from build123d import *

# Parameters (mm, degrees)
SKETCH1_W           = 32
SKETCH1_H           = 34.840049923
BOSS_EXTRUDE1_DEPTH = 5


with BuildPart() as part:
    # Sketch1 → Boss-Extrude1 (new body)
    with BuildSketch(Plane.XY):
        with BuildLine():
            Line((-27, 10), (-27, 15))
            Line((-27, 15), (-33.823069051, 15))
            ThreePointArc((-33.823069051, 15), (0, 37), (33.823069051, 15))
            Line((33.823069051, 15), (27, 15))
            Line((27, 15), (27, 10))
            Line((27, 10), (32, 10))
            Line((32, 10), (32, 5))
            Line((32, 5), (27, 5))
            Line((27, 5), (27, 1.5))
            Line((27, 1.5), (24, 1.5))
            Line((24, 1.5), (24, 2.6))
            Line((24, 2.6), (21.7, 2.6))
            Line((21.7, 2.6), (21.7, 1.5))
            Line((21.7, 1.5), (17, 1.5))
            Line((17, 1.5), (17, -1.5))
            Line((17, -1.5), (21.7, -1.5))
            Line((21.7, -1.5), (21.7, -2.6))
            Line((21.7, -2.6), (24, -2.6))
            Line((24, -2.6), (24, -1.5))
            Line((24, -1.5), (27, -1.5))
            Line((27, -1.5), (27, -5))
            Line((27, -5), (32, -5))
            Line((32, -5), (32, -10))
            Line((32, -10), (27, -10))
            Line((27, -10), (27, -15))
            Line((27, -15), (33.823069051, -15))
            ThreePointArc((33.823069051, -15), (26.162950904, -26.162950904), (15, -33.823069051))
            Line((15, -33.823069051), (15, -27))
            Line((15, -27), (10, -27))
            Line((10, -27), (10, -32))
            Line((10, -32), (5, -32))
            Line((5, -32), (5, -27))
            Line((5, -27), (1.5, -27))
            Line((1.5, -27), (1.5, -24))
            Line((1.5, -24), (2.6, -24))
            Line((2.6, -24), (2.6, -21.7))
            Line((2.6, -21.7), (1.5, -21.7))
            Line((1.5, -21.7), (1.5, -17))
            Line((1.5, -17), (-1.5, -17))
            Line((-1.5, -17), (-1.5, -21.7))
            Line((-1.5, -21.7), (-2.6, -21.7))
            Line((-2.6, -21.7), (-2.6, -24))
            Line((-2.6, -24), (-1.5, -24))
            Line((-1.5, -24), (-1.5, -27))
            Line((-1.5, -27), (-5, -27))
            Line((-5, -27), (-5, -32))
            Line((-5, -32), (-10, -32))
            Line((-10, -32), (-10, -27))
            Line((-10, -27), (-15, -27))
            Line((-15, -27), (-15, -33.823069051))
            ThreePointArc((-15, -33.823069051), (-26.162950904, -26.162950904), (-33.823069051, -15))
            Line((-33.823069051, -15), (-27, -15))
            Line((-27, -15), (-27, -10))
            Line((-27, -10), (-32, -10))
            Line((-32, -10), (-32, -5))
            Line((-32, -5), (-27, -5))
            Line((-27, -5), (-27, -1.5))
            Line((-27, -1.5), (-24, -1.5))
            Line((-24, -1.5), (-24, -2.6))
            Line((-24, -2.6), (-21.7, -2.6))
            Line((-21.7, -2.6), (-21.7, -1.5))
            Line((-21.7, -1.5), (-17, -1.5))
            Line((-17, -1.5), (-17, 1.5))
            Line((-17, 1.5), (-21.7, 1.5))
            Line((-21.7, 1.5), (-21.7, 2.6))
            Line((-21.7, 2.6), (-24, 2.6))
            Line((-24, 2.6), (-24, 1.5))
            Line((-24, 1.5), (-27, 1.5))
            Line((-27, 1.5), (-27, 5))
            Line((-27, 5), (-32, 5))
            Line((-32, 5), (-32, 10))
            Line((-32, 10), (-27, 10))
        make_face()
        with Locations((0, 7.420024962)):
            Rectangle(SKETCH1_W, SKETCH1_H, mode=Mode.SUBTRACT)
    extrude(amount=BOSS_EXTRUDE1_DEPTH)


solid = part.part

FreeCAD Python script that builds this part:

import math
import FreeCAD as App
import Part
import Sketcher

V = App.Vector


def add_polygon(sketch, points):
    """Adds a closed chain of lines whose ends are joined by coincident constraints."""
    first, n = sketch.GeometryCount, len(points)
    for a, b in zip(points, points[1:] + points[:1]):
        sketch.addGeometry(Part.LineSegment(App.Vector(*a, 0), App.Vector(*b, 0)), False)
    for i in range(n):
        sketch.addConstraint(Sketcher.Constraint("Coincident", first + i, 2, first + (i + 1) % n, 1))

doc = App.newDocument("Part")
body = doc.addObject("PartDesign::Body", "Body")

sketch1 = body.newObject("Sketcher::SketchObject", "Sketch")
sketch1.AttachmentSupport = (doc.getObject("XY_Plane"), [""])
sketch1.MapMode = "FlatFace"
sketch1.addGeometry(Part.LineSegment(V(-27, 15, 0), V(-27, 10, 0)), False)
sketch1.addGeometry(Part.LineSegment(V(-27, 10, 0), V(-32, 10, 0)), False)
sketch1.addGeometry(Part.LineSegment(V(-32, 10, 0), V(-32, 5, 0)), False)
sketch1.addGeometry(Part.LineSegment(V(-32, 5, 0), V(-27, 5, 0)), False)
sketch1.addGeometry(Part.LineSegment(V(-27, 5, 0), V(-27, 1.5, 0)), False)
sketch1.addGeometry(Part.LineSegment(V(-27, 1.5, 0), V(-24, 1.5, 0)), False)
sketch1.addGeometry(Part.LineSegment(V(-24, 1.5, 0), V(-24, 2.6, 0)), False)
sketch1.addGeometry(Part.LineSegment(V(-24, 2.6, 0), V(-21.7, 2.6, 0)), False)
sketch1.addGeometry(Part.LineSegment(V(-21.7, 2.6, 0), V(-21.7, 1.5, 0)), False)
sketch1.addGeometry(Part.LineSegment(V(-21.7, 1.5, 0), V(-17, 1.5, 0)), False)
sketch1.addGeometry(Part.LineSegment(V(-17, 1.5, 0), V(-17, -1.5, 0)), False)
sketch1.addGeometry(Part.LineSegment(V(-17, -1.5, 0), V(-21.7, -1.5, 0)), False)
sketch1.addGeometry(Part.LineSegment(V(-21.7, -1.5, 0), V(-21.7, -2.6, 0)), False)
sketch1.addGeometry(Part.LineSegment(V(-21.7, -2.6, 0), V(-24, -2.6, 0)), False)
sketch1.addGeometry(Part.LineSegment(V(-24, -2.6, 0), V(-24, -1.5, 0)), False)
sketch1.addGeometry(Part.LineSegment(V(-24, -1.5, 0), V(-27, -1.5, 0)), False)
sketch1.addGeometry(Part.LineSegment(V(-27, -1.5, 0), V(-27, -5, 0)), False)
sketch1.addGeometry(Part.LineSegment(V(-27, -5, 0), V(-32, -5, 0)), False)
sketch1.addGeometry(Part.LineSegment(V(-32, -5, 0), V(-32, -10, 0)), False)
sketch1.addGeometry(Part.LineSegment(V(-32, -10, 0), V(-27, -10, 0)), False)
sketch1.addGeometry(Part.LineSegment(V(-27, -10, 0), V(-27, -15, 0)), False)
sketch1.addGeometry(Part.LineSegment(V(-27, -15, 0), V(-33.8, -15, 0)), False)
sketch1.addGeometry(Part.ArcOfCircle(Part.Circle(V(0, 0, 0), V(0, 0, 1), 37), math.radians(-156), math.radians(-114)), False)
sketch1.addGeometry(Part.LineSegment(V(-15, -33.8, 0), V(-15, -27, 0)), False)
sketch1.addGeometry(Part.LineSegment(V(-15, -27, 0), V(-10, -27, 0)), False)
sketch1.addGeometry(Part.LineSegment(V(-10, -27, 0), V(-10, -32, 0)), False)
sketch1.addGeometry(Part.LineSegment(V(-10, -32, 0), V(-5, -32, 0)), False)
sketch1.addGeometry(Part.LineSegment(V(-5, -32, 0), V(-5, -27, 0)), False)
sketch1.addGeometry(Part.LineSegment(V(-5, -27, 0), V(-1.5, -27, 0)), False)
sketch1.addGeometry(Part.LineSegment(V(-1.5, -27, 0), V(-1.5, -24, 0)), False)
sketch1.addGeometry(Part.LineSegment(V(-1.5, -24, 0), V(-2.6, -24, 0)), False)
sketch1.addGeometry(Part.LineSegment(V(-2.6, -24, 0), V(-2.6, -21.7, 0)), False)
sketch1.addGeometry(Part.LineSegment(V(-2.6, -21.7, 0), V(-1.5, -21.7, 0)), False)
sketch1.addGeometry(Part.LineSegment(V(-1.5, -21.7, 0), V(-1.5, -17, 0)), False)
sketch1.addGeometry(Part.LineSegment(V(-1.5, -17, 0), V(1.5, -17, 0)), False)
sketch1.addGeometry(Part.LineSegment(V(1.5, -17, 0), V(1.5, -21.7, 0)), False)
sketch1.addGeometry(Part.LineSegment(V(1.5, -21.7, 0), V(2.6, -21.7, 0)), False)
sketch1.addGeometry(Part.LineSegment(V(2.6, -21.7, 0), V(2.6, -24, 0)), False)
sketch1.addGeometry(Part.LineSegment(V(2.6, -24, 0), V(1.5, -24, 0)), False)
sketch1.addGeometry(Part.LineSegment(V(1.5, -24, 0), V(1.5, -27, 0)), False)
sketch1.addGeometry(Part.LineSegment(V(1.5, -27, 0), V(5, -27, 0)), False)
sketch1.addGeometry(Part.LineSegment(V(5, -27, 0), V(5, -32, 0)), False)
sketch1.addGeometry(Part.LineSegment(V(5, -32, 0), V(10, -32, 0)), False)
sketch1.addGeometry(Part.LineSegment(V(10, -32, 0), V(10, -27, 0)), False)
sketch1.addGeometry(Part.LineSegment(V(10, -27, 0), V(15, -27, 0)), False)
sketch1.addGeometry(Part.LineSegment(V(15, -27, 0), V(15, -33.8, 0)), False)
sketch1.addGeometry(Part.ArcOfCircle(Part.Circle(V(0, 0, 0), V(0, 0, 1), 37), math.radians(-66), math.radians(-24)), False)
sketch1.addGeometry(Part.LineSegment(V(33.8, -15, 0), V(27, -15, 0)), False)
sketch1.addGeometry(Part.LineSegment(V(27, -15, 0), V(27, -10, 0)), False)
sketch1.addGeometry(Part.LineSegment(V(27, -10, 0), V(32, -10, 0)), False)
sketch1.addGeometry(Part.LineSegment(V(32, -10, 0), V(32, -5, 0)), False)
sketch1.addGeometry(Part.LineSegment(V(32, -5, 0), V(27, -5, 0)), False)
sketch1.addGeometry(Part.LineSegment(V(27, -5, 0), V(27, -1.5, 0)), False)
sketch1.addGeometry(Part.LineSegment(V(27, -1.5, 0), V(24, -1.5, 0)), False)
sketch1.addGeometry(Part.LineSegment(V(24, -1.5, 0), V(24, -2.6, 0)), False)
sketch1.addGeometry(Part.LineSegment(V(24, -2.6, 0), V(21.7, -2.6, 0)), False)
sketch1.addGeometry(Part.LineSegment(V(21.7, -2.6, 0), V(21.7, -1.5, 0)), False)
sketch1.addGeometry(Part.LineSegment(V(21.7, -1.5, 0), V(17, -1.5, 0)), False)
sketch1.addGeometry(Part.LineSegment(V(17, -1.5, 0), V(17, 1.5, 0)), False)
sketch1.addGeometry(Part.LineSegment(V(17, 1.5, 0), V(21.7, 1.5, 0)), False)
sketch1.addGeometry(Part.LineSegment(V(21.7, 1.5, 0), V(21.7, 2.6, 0)), False)
sketch1.addGeometry(Part.LineSegment(V(21.7, 2.6, 0), V(24, 2.6, 0)), False)
sketch1.addGeometry(Part.LineSegment(V(24, 2.6, 0), V(24, 1.5, 0)), False)
sketch1.addGeometry(Part.LineSegment(V(24, 1.5, 0), V(27, 1.5, 0)), False)
sketch1.addGeometry(Part.LineSegment(V(27, 1.5, 0), V(27, 5, 0)), False)
sketch1.addGeometry(Part.LineSegment(V(27, 5, 0), V(32, 5, 0)), False)
sketch1.addGeometry(Part.LineSegment(V(32, 5, 0), V(32, 10, 0)), False)
sketch1.addGeometry(Part.LineSegment(V(32, 10, 0), V(27, 10, 0)), False)
sketch1.addGeometry(Part.LineSegment(V(27, 10, 0), V(27, 15, 0)), False)
sketch1.addGeometry(Part.LineSegment(V(27, 15, 0), V(33.8, 15, 0)), False)
sketch1.addGeometry(Part.ArcOfCircle(Part.Circle(V(0, 0, 0), V(0, 0, 1), 37), math.radians(24), math.radians(156)), False)
sketch1.addGeometry(Part.LineSegment(V(-33.8, 15, 0), V(-27, 15, 0)), False)
add_polygon(sketch1, [(-16, -10), (-16, 24.8), (16, 24.8), (16, -10)])
sketch1.addConstraint(Sketcher.Constraint("Coincident", 0, 2, 1, 1))
sketch1.addConstraint(Sketcher.Constraint("Coincident", 1, 2, 2, 1))
sketch1.addConstraint(Sketcher.Constraint("Coincident", 2, 2, 3, 1))
sketch1.addConstraint(Sketcher.Constraint("Coincident", 3, 2, 4, 1))
sketch1.addConstraint(Sketcher.Constraint("Coincident", 4, 2, 5, 1))
sketch1.addConstraint(Sketcher.Constraint("Coincident", 5, 2, 6, 1))
sketch1.addConstraint(Sketcher.Constraint("Coincident", 6, 2, 7, 1))
sketch1.addConstraint(Sketcher.Constraint("Coincident", 7, 2, 8, 1))
sketch1.addConstraint(Sketcher.Constraint("Coincident", 8, 2, 9, 1))
sketch1.addConstraint(Sketcher.Constraint("Coincident", 9, 2, 10, 1))
sketch1.addConstraint(Sketcher.Constraint("Coincident", 10, 2, 11, 1))
sketch1.addConstraint(Sketcher.Constraint("Coincident", 11, 2, 12, 1))
sketch1.addConstraint(Sketcher.Constraint("Coincident", 12, 2, 13, 1))
sketch1.addConstraint(Sketcher.Constraint("Coincident", 13, 2, 14, 1))
sketch1.addConstraint(Sketcher.Constraint("Coincident", 14, 2, 15, 1))
sketch1.addConstraint(Sketcher.Constraint("Coincident", 15, 2, 16, 1))
sketch1.addConstraint(Sketcher.Constraint("Coincident", 16, 2, 17, 1))
sketch1.addConstraint(Sketcher.Constraint("Coincident", 17, 2, 18, 1))
sketch1.addConstraint(Sketcher.Constraint("Coincident", 18, 2, 19, 1))
sketch1.addConstraint(Sketcher.Constraint("Coincident", 19, 2, 20, 1))
sketch1.addConstraint(Sketcher.Constraint("Coincident", 20, 2, 21, 1))
sketch1.addConstraint(Sketcher.Constraint("Coincident", 21, 2, 22, 1))
sketch1.addConstraint(Sketcher.Constraint("Coincident", 22, 2, 23, 1))
sketch1.addConstraint(Sketcher.Constraint("Coincident", 23, 2, 24, 1))
sketch1.addConstraint(Sketcher.Constraint("Coincident", 24, 2, 25, 1))
sketch1.addConstraint(Sketcher.Constraint("Coincident", 25, 2, 26, 1))
sketch1.addConstraint(Sketcher.Constraint("Coincident", 26, 2, 27, 1))
sketch1.addConstraint(Sketcher.Constraint("Coincident", 27, 2, 28, 1))
sketch1.addConstraint(Sketcher.Constraint("Coincident", 28, 2, 29, 1))
sketch1.addConstraint(Sketcher.Constraint("Coincident", 29, 2, 30, 1))
sketch1.addConstraint(Sketcher.Constraint("Coincident", 30, 2, 31, 1))
sketch1.addConstraint(Sketcher.Constraint("Coincident", 31, 2, 32, 1))
sketch1.addConstraint(Sketcher.Constraint("Coincident", 32, 2, 33, 1))
sketch1.addConstraint(Sketcher.Constraint("Coincident", 33, 2, 34, 1))
sketch1.addConstraint(Sketcher.Constraint("Coincident", 34, 2, 35, 1))
sketch1.addConstraint(Sketcher.Constraint("Coincident", 35, 2, 36, 1))
sketch1.addConstraint(Sketcher.Constraint("Coincident", 36, 2, 37, 1))
sketch1.addConstraint(Sketcher.Constraint("Coincident", 37, 2, 38, 1))
sketch1.addConstraint(Sketcher.Constraint("Coincident", 38, 2, 39, 1))
sketch1.addConstraint(Sketcher.Constraint("Coincident", 39, 2, 40, 1))
sketch1.addConstraint(Sketcher.Constraint("Coincident", 40, 2, 41, 1))
sketch1.addConstraint(Sketcher.Constraint("Coincident", 41, 2, 42, 1))
sketch1.addConstraint(Sketcher.Constraint("Coincident", 42, 2, 43, 1))
sketch1.addConstraint(Sketcher.Constraint("Coincident", 43, 2, 44, 1))
sketch1.addConstraint(Sketcher.Constraint("Coincident", 44, 2, 45, 1))
sketch1.addConstraint(Sketcher.Constraint("Coincident", 45, 2, 46, 1))
sketch1.addConstraint(Sketcher.Constraint("Coincident", 46, 2, 47, 1))
sketch1.addConstraint(Sketcher.Constraint("Coincident", 47, 2, 48, 1))
sketch1.addConstraint(Sketcher.Constraint("Coincident", 48, 2, 49, 1))
sketch1.addConstraint(Sketcher.Constraint("Coincident", 49, 2, 50, 1))
sketch1.addConstraint(Sketcher.Constraint("Coincident", 50, 2, 51, 1))
sketch1.addConstraint(Sketcher.Constraint("Coincident", 51, 2, 52, 1))
sketch1.addConstraint(Sketcher.Constraint("Coincident", 52, 2, 53, 1))
sketch1.addConstraint(Sketcher.Constraint("Coincident", 53, 2, 54, 1))
sketch1.addConstraint(Sketcher.Constraint("Coincident", 54, 2, 55, 1))
sketch1.addConstraint(Sketcher.Constraint("Coincident", 55, 2, 56, 1))
sketch1.addConstraint(Sketcher.Constraint("Coincident", 56, 2, 57, 1))
sketch1.addConstraint(Sketcher.Constraint("Coincident", 57, 2, 58, 1))
sketch1.addConstraint(Sketcher.Constraint("Coincident", 58, 2, 59, 1))
sketch1.addConstraint(Sketcher.Constraint("Coincident", 59, 2, 60, 1))
sketch1.addConstraint(Sketcher.Constraint("Coincident", 60, 2, 61, 1))
sketch1.addConstraint(Sketcher.Constraint("Coincident", 61, 2, 62, 1))
sketch1.addConstraint(Sketcher.Constraint("Coincident", 62, 2, 63, 1))
sketch1.addConstraint(Sketcher.Constraint("Coincident", 63, 2, 64, 1))
sketch1.addConstraint(Sketcher.Constraint("Coincident", 64, 2, 65, 1))
sketch1.addConstraint(Sketcher.Constraint("Coincident", 65, 2, 66, 1))
sketch1.addConstraint(Sketcher.Constraint("Coincident", 66, 2, 67, 1))
sketch1.addConstraint(Sketcher.Constraint("Coincident", 67, 2, 68, 1))
sketch1.addConstraint(Sketcher.Constraint("Coincident", 68, 2, 69, 1))
sketch1.addConstraint(Sketcher.Constraint("Coincident", 69, 2, 70, 1))
sketch1.addConstraint(Sketcher.Constraint("Coincident", 70, 2, 71, 1))
sketch1.addConstraint(Sketcher.Constraint("Coincident", 71, 2, 0, 1))
sketch1.addConstraint(Sketcher.Constraint("Vertical", 0))
sketch1.addConstraint(Sketcher.Constraint("Horizontal", 1))
sketch1.addConstraint(Sketcher.Constraint("Vertical", 2))
sketch1.addConstraint(Sketcher.Constraint("Horizontal", 3))
sketch1.addConstraint(Sketcher.Constraint("Vertical", 4))
sketch1.addConstraint(Sketcher.Constraint("Horizontal", 5))
sketch1.addConstraint(Sketcher.Constraint("Vertical", 6))
sketch1.addConstraint(Sketcher.Constraint("Horizontal", 7))
sketch1.addConstraint(Sketcher.Constraint("Vertical", 8))
sketch1.addConstraint(Sketcher.Constraint("Horizontal", 9))
sketch1.addConstraint(Sketcher.Constraint("Vertical", 10))
sketch1.addConstraint(Sketcher.Constraint("Horizontal", 11))
sketch1.addConstraint(Sketcher.Constraint("Vertical", 12))
sketch1.addConstraint(Sketcher.Constraint("Horizontal", 13))
sketch1.addConstraint(Sketcher.Constraint("Vertical", 14))
sketch1.addConstraint(Sketcher.Constraint("Horizontal", 15))
sketch1.addConstraint(Sketcher.Constraint("Vertical", 16))
sketch1.addConstraint(Sketcher.Constraint("Horizontal", 17))
sketch1.addConstraint(Sketcher.Constraint("Vertical", 18))
sketch1.addConstraint(Sketcher.Constraint("Horizontal", 19))
sketch1.addConstraint(Sketcher.Constraint("Vertical", 20))
sketch1.addConstraint(Sketcher.Constraint("Horizontal", 21))
sketch1.addConstraint(Sketcher.Constraint("Vertical", 23))
sketch1.addConstraint(Sketcher.Constraint("Horizontal", 24))
sketch1.addConstraint(Sketcher.Constraint("Vertical", 25))
sketch1.addConstraint(Sketcher.Constraint("Horizontal", 26))
sketch1.addConstraint(Sketcher.Constraint("Vertical", 27))
sketch1.addConstraint(Sketcher.Constraint("Horizontal", 28))
sketch1.addConstraint(Sketcher.Constraint("Vertical", 29))
sketch1.addConstraint(Sketcher.Constraint("Horizontal", 30))
sketch1.addConstraint(Sketcher.Constraint("Vertical", 31))
sketch1.addConstraint(Sketcher.Constraint("Horizontal", 32))
sketch1.addConstraint(Sketcher.Constraint("Vertical", 33))
sketch1.addConstraint(Sketcher.Constraint("Horizontal", 34))
sketch1.addConstraint(Sketcher.Constraint("Vertical", 35))
sketch1.addConstraint(Sketcher.Constraint("Horizontal", 36))
sketch1.addConstraint(Sketcher.Constraint("Vertical", 37))
sketch1.addConstraint(Sketcher.Constraint("Horizontal", 38))
sketch1.addConstraint(Sketcher.Constraint("Vertical", 39))
sketch1.addConstraint(Sketcher.Constraint("Horizontal", 40))
sketch1.addConstraint(Sketcher.Constraint("Vertical", 41))
sketch1.addConstraint(Sketcher.Constraint("Horizontal", 42))
sketch1.addConstraint(Sketcher.Constraint("Vertical", 43))
sketch1.addConstraint(Sketcher.Constraint("Horizontal", 44))
sketch1.addConstraint(Sketcher.Constraint("Vertical", 45))
sketch1.addConstraint(Sketcher.Constraint("Horizontal", 47))
sketch1.addConstraint(Sketcher.Constraint("Vertical", 48))
sketch1.addConstraint(Sketcher.Constraint("Horizontal", 49))
sketch1.addConstraint(Sketcher.Constraint("Vertical", 50))
sketch1.addConstraint(Sketcher.Constraint("Horizontal", 51))
sketch1.addConstraint(Sketcher.Constraint("Vertical", 52))
sketch1.addConstraint(Sketcher.Constraint("Horizontal", 53))
sketch1.addConstraint(Sketcher.Constraint("Vertical", 54))
sketch1.addConstraint(Sketcher.Constraint("Horizontal", 55))
sketch1.addConstraint(Sketcher.Constraint("Vertical", 56))
sketch1.addConstraint(Sketcher.Constraint("Horizontal", 57))
sketch1.addConstraint(Sketcher.Constraint("Vertical", 58))
sketch1.addConstraint(Sketcher.Constraint("Horizontal", 59))
sketch1.addConstraint(Sketcher.Constraint("Vertical", 60))
sketch1.addConstraint(Sketcher.Constraint("Horizontal", 61))
sketch1.addConstraint(Sketcher.Constraint("Vertical", 62))
sketch1.addConstraint(Sketcher.Constraint("Horizontal", 63))
sketch1.addConstraint(Sketcher.Constraint("Vertical", 64))
sketch1.addConstraint(Sketcher.Constraint("Horizontal", 65))
sketch1.addConstraint(Sketcher.Constraint("Vertical", 66))
sketch1.addConstraint(Sketcher.Constraint("Horizontal", 67))
sketch1.addConstraint(Sketcher.Constraint("Vertical", 68))
sketch1.addConstraint(Sketcher.Constraint("Horizontal", 69))
sketch1.addConstraint(Sketcher.Constraint("Horizontal", 71))
sketch1.addConstraint(Sketcher.Constraint("Vertical", 72))
sketch1.addConstraint(Sketcher.Constraint("Horizontal", 73))
sketch1.addConstraint(Sketcher.Constraint("Vertical", 74))
sketch1.addConstraint(Sketcher.Constraint("Horizontal", 75))
sketch1.addConstraint(Sketcher.Constraint("Coincident", 22, 3, -1, 1))
sketch1.addConstraint(Sketcher.Constraint("Coincident", 46, 3, -1, 1))
sketch1.addConstraint(Sketcher.Constraint("Coincident", 70, 3, -1, 1))
sketch1.addConstraint(Sketcher.Constraint("Equal", 22, 46))
sketch1.addConstraint(Sketcher.Constraint("Equal", 46, 70))
sketch1.addConstraint(Sketcher.Constraint("Symmetric", 0, 2, 48, 2, -1, 1))
sketch1.addConstraint(Sketcher.Constraint("Symmetric", 2, 2, 50, 2, -1, 1))
sketch1.addConstraint(Sketcher.Constraint("Symmetric", 4, 2, 52, 2, -1, 1))
sketch1.addConstraint(Sketcher.Constraint("Symmetric", 6, 2, 54, 2, -1, 1))
sketch1.addConstraint(Sketcher.Constraint("Symmetric", 8, 2, 56, 2, -1, 1))
sketch1.addConstraint(Sketcher.Constraint("Symmetric", 10, 2, 58, 2, -1, 1))
sketch1.addConstraint(Sketcher.Constraint("Symmetric", 12, 2, 60, 2, -1, 1))
sketch1.addConstraint(Sketcher.Constraint("Symmetric", 14, 2, 62, 2, -1, 1))
sketch1.addConstraint(Sketcher.Constraint("Symmetric", 16, 2, 64, 2, -1, 1))
sketch1.addConstraint(Sketcher.Constraint("Symmetric", 18, 2, 66, 2, -1, 1))
sketch1.addConstraint(Sketcher.Constraint("Symmetric", 20, 2, 68, 2, -1, 1))
sketch1.addConstraint(Sketcher.Constraint("Symmetric", 32, 2, 35, 2, -2))
sketch1.addConstraint(Sketcher.Constraint("Symmetric", 30, 2, 37, 2, -2))
sketch1.addConstraint(Sketcher.Constraint("Symmetric", 28, 2, 39, 2, -2))
sketch1.addConstraint(Sketcher.Constraint("Symmetric", 26, 2, 41, 2, -2))
sketch1.addConstraint(Sketcher.Constraint("Symmetric", 24, 2, 43, 2, -2))
sketch1.addConstraint(Sketcher.Constraint("Symmetric", 20, 2, 47, 2, -2))
sketch1.addConstraint(Sketcher.Constraint("Symmetric", 18, 2, 49, 2, -2))
sketch1.addConstraint(Sketcher.Constraint("Symmetric", 16, 2, 51, 2, -2))
sketch1.addConstraint(Sketcher.Constraint("Symmetric", 14, 2, 53, 2, -2))
sketch1.addConstraint(Sketcher.Constraint("Symmetric", 12, 2, 55, 2, -2))
sketch1.addConstraint(Sketcher.Constraint("Horizontal", 5, 2, 8, 2))
sketch1.addConstraint(Sketcher.Constraint("Horizontal", 11, 2, 14, 2))
sketch1.addConstraint(Sketcher.Constraint("Horizontal", 24, 2, 27, 2))
sketch1.addConstraint(Sketcher.Constraint("Horizontal", 22, 2, 45, 2))
sketch1.addConstraint(Sketcher.Constraint("Horizontal", 69, 2, 70, 2))
sketch1.addConstraint(Sketcher.Constraint("Horizontal", 49, 2, 74, 2))
sketch1.addConstraint(Sketcher.Constraint("Vertical", 0, 2, 3, 2))
sketch1.addConstraint(Sketcher.Constraint("Vertical", 29, 2, 32, 2))
sketch1.addConstraint(Sketcher.Constraint("Equal", 19, 24))
sketch1.addConstraint(Sketcher.Constraint("Equal", 24, 26))
sketch1.addConstraint(Sketcher.Constraint("Equal", 15, 34))
sketch1.addConstraint(Sketcher.Constraint("Equal", 67, 0))
sketch1.addConstraint(Sketcher.Constraint("Equal", 0, 2))
sketch1.addConstraint(Sketcher.Constraint("Equal", 40, 4))
sketch1.addConstraint(Sketcher.Constraint("Equal", 38, 6))
sketch1.addConstraint(Sketcher.Constraint("Equal", 63, 10))
sketch1.addConstraint(Sketcher.Constraint("Equal", 71, 23))
sketch1.addConstraint(Sketcher.Constraint("Equal", 20, 25))
sketch1.addConstraint(Sketcher.Constraint("Equal", 10, 29))
sketch1.addConstraint(Sketcher.Constraint("Equal", 61, 31))
sketch1.addConstraint(Sketcher.Constraint("Equal", 59, 33))
sketch1.addConstraint(Sketcher.Constraint("Radius", 22, 37.0))
sketch1.addConstraint(Sketcher.Constraint("DistanceX", 1, 2, 1, 1, 5.0))
sketch1.addConstraint(Sketcher.Constraint("DistanceX", 5, 1, 5, 2, 3.0))
sketch1.addConstraint(Sketcher.Constraint("DistanceX", 73, 1, 73, 2, 32.0))
sketch1.addConstraint(Sketcher.Constraint("DistanceX", 7, 1, 7, 2, 2.3))
sketch1.addConstraint(Sketcher.Constraint("DistanceX", 9, 1, 9, 2, 4.7))
sketch1.addConstraint(Sketcher.Constraint("DistanceX", 28, 1, 28, 2, 3.5))
sketch1.addConstraint(Sketcher.Constraint("DistanceX", 30, 2, 30, 1, 1.1))
sketch1.addConstraint(Sketcher.Constraint("DistanceX", 0, 2, -1, 1, 27.0))
sketch1.addConstraint(Sketcher.Constraint("DistanceX", 72, 2, -1, 1, 16.0))
sketch1.addConstraint(Sketcher.Constraint("DistanceY", 72, 1, 72, 2, 34.84005))
pad1 = body.newObject("PartDesign::Pad", "Pad")
pad1.Profile = sketch1
pad1.Length = 5

doc.recompute()
